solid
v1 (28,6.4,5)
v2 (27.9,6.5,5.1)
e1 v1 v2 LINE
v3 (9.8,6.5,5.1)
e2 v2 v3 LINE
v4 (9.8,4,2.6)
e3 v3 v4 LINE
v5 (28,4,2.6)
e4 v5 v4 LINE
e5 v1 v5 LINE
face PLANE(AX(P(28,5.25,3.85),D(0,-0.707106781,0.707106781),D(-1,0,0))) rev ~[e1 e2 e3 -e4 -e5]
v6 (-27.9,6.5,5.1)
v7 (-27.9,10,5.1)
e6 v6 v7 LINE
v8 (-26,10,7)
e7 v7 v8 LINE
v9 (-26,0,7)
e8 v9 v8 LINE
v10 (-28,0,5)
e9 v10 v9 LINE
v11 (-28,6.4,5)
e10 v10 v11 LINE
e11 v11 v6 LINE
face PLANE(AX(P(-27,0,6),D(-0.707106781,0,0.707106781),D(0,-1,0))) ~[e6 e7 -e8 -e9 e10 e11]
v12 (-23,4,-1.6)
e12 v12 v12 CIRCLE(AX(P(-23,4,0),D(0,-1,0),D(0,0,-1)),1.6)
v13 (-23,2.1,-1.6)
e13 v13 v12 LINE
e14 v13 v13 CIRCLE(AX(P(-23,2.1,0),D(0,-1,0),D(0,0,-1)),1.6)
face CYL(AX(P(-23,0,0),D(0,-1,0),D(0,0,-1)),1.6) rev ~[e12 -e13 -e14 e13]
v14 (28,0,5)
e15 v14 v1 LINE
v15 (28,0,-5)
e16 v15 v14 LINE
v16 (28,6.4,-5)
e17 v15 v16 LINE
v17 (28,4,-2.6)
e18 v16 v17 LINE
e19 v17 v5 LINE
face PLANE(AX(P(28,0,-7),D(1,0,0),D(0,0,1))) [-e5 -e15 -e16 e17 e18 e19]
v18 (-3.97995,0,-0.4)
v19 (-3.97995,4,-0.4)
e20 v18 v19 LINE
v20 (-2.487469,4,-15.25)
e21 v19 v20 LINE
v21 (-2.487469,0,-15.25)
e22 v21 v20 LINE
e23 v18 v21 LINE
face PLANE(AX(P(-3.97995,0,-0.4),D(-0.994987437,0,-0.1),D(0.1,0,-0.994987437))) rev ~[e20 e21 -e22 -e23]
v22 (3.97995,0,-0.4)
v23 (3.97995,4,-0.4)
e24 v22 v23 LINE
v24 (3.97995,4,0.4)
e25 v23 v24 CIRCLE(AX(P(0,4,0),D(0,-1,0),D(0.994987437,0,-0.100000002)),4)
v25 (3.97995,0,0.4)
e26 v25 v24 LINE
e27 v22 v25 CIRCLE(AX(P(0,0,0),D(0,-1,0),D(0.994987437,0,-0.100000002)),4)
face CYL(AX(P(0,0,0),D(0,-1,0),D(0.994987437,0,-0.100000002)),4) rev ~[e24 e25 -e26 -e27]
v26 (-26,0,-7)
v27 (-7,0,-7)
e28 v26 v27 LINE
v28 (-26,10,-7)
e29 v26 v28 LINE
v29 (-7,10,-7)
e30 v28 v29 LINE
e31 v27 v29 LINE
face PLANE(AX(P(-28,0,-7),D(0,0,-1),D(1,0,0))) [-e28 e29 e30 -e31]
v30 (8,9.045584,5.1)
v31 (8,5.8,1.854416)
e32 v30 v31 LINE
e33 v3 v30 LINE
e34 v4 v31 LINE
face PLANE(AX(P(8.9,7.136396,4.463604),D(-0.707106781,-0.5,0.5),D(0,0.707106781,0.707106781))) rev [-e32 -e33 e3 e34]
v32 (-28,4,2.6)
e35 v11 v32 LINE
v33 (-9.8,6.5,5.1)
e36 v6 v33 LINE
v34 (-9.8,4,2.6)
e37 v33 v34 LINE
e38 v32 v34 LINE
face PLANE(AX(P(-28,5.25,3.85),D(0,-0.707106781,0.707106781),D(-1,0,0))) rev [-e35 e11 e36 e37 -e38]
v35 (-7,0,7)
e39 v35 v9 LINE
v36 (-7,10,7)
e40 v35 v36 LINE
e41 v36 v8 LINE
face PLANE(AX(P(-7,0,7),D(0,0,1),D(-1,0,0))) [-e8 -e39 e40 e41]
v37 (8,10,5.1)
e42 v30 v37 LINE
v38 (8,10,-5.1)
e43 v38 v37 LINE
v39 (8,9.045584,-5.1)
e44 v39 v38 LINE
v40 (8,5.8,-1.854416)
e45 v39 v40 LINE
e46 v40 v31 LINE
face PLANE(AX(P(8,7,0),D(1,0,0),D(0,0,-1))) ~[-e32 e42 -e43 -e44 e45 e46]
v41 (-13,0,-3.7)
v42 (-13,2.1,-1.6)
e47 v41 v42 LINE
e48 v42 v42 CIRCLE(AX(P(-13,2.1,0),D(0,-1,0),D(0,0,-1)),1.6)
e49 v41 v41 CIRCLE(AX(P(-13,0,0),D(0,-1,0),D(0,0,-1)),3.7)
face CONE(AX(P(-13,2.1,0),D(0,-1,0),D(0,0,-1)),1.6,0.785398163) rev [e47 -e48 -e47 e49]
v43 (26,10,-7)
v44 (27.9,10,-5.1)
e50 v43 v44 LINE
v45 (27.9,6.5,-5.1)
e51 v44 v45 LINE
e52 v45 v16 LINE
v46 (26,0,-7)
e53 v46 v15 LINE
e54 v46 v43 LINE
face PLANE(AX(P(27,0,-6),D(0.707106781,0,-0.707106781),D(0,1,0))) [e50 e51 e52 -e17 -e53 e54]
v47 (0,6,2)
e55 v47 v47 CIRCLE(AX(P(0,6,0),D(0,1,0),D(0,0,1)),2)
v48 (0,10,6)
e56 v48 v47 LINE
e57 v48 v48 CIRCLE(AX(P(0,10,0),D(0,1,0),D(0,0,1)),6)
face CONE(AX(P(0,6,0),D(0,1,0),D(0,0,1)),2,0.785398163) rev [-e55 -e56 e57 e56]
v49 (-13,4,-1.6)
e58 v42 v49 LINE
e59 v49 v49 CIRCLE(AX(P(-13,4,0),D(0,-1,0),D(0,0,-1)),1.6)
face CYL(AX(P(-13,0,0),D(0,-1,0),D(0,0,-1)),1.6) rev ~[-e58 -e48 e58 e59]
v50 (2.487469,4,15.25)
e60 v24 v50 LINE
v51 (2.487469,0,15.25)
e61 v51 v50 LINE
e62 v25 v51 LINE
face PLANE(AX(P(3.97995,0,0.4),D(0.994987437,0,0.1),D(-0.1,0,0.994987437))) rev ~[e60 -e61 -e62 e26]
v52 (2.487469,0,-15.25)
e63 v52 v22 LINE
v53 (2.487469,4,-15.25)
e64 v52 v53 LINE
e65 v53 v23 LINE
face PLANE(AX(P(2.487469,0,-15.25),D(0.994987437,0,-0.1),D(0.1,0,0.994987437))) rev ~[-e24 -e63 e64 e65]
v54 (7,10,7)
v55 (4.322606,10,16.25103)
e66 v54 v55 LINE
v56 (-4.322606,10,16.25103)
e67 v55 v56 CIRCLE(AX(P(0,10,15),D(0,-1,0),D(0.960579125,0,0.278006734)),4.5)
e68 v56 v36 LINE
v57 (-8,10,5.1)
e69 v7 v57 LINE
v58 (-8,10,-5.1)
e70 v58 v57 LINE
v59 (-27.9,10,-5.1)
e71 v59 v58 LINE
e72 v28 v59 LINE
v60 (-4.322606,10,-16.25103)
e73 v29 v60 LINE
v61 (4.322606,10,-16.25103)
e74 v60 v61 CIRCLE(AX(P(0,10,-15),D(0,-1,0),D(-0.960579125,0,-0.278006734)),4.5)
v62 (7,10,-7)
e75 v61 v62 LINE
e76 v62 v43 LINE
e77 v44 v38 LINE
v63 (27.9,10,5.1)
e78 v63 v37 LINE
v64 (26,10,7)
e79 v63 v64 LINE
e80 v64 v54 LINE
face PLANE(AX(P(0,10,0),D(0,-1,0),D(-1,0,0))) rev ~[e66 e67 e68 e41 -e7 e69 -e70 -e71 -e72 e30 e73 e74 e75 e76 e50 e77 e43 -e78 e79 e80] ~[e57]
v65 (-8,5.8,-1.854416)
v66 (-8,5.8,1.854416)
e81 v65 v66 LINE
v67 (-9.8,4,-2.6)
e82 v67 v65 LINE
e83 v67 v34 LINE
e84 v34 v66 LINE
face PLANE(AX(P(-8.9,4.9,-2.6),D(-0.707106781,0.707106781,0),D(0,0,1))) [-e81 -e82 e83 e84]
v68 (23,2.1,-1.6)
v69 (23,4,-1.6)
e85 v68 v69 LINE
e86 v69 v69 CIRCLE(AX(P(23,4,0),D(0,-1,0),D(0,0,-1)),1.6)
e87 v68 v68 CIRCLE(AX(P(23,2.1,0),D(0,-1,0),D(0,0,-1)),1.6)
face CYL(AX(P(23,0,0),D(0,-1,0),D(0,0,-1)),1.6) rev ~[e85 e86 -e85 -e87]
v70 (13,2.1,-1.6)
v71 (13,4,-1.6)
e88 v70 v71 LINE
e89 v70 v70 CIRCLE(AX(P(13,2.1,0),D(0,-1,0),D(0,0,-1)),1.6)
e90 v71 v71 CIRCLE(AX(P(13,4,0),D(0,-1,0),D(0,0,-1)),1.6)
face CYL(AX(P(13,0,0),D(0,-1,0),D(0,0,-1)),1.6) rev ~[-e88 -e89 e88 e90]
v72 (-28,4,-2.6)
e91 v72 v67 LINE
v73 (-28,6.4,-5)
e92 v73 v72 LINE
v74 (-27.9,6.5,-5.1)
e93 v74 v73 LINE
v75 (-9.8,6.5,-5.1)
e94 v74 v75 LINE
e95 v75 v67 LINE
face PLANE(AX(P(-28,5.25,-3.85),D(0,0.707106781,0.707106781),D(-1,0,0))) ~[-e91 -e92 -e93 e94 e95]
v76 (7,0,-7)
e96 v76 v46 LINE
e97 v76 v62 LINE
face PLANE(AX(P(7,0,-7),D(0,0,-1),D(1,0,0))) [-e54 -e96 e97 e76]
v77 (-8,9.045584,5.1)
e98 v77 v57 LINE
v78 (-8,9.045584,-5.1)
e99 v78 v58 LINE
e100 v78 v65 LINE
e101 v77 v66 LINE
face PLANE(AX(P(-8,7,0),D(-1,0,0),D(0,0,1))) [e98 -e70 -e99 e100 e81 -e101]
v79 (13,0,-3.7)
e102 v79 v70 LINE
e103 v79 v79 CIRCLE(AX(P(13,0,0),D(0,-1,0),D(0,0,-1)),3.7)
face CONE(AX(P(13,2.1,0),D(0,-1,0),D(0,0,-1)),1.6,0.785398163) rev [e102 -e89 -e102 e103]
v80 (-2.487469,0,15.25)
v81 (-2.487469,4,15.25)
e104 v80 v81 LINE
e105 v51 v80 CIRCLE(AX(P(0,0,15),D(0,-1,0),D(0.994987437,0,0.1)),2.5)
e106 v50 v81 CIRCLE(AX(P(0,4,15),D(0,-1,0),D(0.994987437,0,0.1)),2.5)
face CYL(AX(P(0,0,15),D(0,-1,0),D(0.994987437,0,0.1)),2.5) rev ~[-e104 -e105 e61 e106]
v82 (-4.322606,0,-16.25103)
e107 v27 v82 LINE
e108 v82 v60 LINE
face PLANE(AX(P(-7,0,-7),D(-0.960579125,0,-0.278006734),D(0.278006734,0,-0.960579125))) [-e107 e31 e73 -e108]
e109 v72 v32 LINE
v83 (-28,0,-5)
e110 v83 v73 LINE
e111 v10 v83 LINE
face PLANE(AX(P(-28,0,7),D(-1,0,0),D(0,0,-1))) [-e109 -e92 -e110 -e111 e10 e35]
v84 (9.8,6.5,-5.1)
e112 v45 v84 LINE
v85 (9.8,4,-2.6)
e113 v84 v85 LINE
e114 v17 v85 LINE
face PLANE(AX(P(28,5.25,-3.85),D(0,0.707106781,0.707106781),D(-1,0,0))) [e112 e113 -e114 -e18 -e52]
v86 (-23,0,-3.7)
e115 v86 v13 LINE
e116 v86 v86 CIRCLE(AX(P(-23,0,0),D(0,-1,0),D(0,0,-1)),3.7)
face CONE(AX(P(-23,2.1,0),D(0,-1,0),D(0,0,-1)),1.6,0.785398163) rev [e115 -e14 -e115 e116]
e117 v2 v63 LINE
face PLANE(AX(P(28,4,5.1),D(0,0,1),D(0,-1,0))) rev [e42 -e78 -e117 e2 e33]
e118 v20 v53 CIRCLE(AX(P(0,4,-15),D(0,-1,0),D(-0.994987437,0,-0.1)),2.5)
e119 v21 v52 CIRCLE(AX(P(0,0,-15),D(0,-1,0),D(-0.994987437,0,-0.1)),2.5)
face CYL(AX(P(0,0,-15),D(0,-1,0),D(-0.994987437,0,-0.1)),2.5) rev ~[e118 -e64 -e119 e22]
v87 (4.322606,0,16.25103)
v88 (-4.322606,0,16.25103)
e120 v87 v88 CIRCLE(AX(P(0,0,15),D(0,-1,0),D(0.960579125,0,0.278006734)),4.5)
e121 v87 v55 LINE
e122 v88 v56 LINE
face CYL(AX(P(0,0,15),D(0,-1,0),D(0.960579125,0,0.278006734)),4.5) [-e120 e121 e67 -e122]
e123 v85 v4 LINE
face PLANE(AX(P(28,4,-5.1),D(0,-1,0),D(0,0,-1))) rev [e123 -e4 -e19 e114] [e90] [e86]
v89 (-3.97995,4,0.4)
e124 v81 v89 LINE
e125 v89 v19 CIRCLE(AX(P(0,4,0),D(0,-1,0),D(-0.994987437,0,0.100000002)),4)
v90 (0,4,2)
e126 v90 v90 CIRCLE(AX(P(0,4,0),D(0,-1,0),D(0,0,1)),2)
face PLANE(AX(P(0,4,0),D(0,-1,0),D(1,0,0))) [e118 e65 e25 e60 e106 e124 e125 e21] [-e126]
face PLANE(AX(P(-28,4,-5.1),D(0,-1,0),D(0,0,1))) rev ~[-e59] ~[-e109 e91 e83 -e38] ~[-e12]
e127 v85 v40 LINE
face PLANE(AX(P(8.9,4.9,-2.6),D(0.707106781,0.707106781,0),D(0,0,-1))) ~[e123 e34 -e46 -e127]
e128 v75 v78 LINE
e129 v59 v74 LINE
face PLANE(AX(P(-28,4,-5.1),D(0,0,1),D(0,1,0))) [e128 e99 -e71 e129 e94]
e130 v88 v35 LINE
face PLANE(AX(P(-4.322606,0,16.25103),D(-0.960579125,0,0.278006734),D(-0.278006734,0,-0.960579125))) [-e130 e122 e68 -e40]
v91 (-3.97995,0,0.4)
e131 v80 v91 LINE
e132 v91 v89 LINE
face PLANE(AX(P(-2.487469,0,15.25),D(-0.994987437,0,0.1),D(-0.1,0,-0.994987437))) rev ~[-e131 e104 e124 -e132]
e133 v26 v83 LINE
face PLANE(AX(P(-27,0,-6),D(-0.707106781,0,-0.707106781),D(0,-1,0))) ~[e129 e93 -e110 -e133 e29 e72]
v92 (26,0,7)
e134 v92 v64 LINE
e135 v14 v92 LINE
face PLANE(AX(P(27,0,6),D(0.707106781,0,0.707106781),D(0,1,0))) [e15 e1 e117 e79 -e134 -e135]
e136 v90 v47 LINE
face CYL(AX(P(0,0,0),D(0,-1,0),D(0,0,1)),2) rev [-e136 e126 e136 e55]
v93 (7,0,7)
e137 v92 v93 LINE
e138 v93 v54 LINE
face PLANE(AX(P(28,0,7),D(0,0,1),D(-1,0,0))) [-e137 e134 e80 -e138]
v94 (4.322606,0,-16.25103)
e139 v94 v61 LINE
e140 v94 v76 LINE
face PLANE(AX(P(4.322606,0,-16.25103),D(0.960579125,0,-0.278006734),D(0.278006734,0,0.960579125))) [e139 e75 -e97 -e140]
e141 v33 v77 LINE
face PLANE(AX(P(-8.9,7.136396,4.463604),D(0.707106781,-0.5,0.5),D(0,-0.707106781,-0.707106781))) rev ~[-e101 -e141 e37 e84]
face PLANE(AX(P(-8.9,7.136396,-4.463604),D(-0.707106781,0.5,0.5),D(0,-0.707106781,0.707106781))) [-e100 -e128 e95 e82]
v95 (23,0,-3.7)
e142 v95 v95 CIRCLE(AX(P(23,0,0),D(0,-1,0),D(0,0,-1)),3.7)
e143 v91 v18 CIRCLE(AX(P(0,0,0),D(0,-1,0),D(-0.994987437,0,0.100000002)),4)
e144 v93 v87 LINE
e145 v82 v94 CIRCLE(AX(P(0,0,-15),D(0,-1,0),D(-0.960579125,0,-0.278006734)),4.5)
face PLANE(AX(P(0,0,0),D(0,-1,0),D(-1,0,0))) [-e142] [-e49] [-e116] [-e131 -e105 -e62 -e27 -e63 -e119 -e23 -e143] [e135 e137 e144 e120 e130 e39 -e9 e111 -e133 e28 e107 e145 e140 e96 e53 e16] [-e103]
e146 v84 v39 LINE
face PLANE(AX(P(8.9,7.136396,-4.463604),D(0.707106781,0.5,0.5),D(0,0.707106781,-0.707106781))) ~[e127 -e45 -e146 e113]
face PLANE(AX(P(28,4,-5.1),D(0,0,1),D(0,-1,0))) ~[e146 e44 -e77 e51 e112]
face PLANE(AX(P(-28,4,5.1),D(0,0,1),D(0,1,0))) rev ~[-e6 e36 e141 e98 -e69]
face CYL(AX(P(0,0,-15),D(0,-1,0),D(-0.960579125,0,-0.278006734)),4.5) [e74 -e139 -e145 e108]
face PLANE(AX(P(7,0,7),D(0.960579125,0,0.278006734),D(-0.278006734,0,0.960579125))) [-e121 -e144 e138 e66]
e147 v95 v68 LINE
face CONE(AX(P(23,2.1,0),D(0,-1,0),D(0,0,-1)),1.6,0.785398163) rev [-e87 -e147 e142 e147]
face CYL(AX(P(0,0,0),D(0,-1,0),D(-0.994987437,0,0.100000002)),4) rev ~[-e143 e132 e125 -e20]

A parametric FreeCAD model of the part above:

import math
import FreeCAD as App
import Part
import Sketcher
from FreeCAD import Vector


def edges_at(feature, points):
    """Names of the edges that pass closest to the given points."""
    edges = feature.Shape.Edges
    near = lambda p: min(range(len(edges)), key=lambda i: edges[i].distToShape(Part.Vertex(*p))[0])
    return sorted({f"Edge{near(p) + 1}" for p in points})

doc = App.newDocument("Part")
params = doc.addObject("Spreadsheet::Sheet", "Params")
for row, (alias, value) in enumerate([
    ("sketch1_diameter", "4 mm"),
    ("sketch1_radius", "4.5 mm"),
    ("sketch1_width", "21 mm"),
    ("sketch1_height", "14 mm"),
    ("pad1_length", "10 mm"),
    ("sketch2_width", "6 mm"),
    ("sketch2_height", "10.2 mm"),
    ("pocket1_length", "20 mm"),
    ("chamfer_size", "2.5 mm"),
    ("chamfer2_size", "1.8 mm"),
    ("chamfer3_size", "2.5 mm"),
    ("chamfer4_size", "1.8 mm"),
    ("sketch3_diameter", "3.2 mm"),
    ("pocket2_length", "7 mm"),
    ("chamfer5_size", "2.1 mm"),
    ("chamfer6_size", "2 mm"),
    ("sketch4_radius", "4 mm"),
    ("sketch4_radius2", "2.5 mm"),
    ("pocket3_length", "4 mm"),
    ("chamfer7_size", "4 mm"),
], start=1):
    params.set(f"A{row}", alias)
    params.set(f"B{row}", "=" + value)
    params.setAlias(f"B{row}", alias)

body = doc.addObject("PartDesign::Body", "Body")

# Sketch on XZ plane
sketch1 = body.newObject("Sketcher::SketchObject", "Sketch")
sketch1.AttachmentSupport = (doc.getObject("XZ_Plane"), [""])
sketch1.MapMode = "FlatFace"
sketch1.addGeometry([
    Part.LineSegment(Vector(28, -7, 0), Vector(7, -7, 0)),  # 0
    Part.LineSegment(Vector(7, -7, 0), Vector(4.3, -16.3, 0)),  # 1
    Part.ArcOfCircle(Part.Circle(Vector(0, -15, 0), Vector(0, 0, 1), 4.5), math.radians(-164), math.radians(-16)),  # 2
    Part.LineSegment(Vector(-4.3, -16.3, 0), Vector(-7, -7, 0)),  # 3
    Part.LineSegment(Vector(-7, -7, 0), Vector(-28, -7, 0)),  # 4
    Part.LineSegment(Vector(-28, -7, 0), Vector(-28, 7, 0)),  # 5
    Part.LineSegment(Vector(-28, 7, 0), Vector(-7, 7, 0)),  # 6
    Part.LineSegment(Vector(-7, 7, 0), Vector(-4.3, 16.3, 0)),  # 7
    Part.ArcOfCircle(Part.Circle(Vector(0, 15, 0), Vector(0, 0, 1), 4.5), math.radians(16), math.radians(164)),  # 8
    Part.LineSegment(Vector(4.3, 16.3, 0), Vector(7, 7, 0)),  # 9
    Part.LineSegment(Vector(7, 7, 0), Vector(28, 7, 0)),  # 10
    Part.LineSegment(Vector(28, 7, 0), Vector(28, -7, 0)),  # 11
    Part.Circle(Vector(0, 0, 0), Vector(0, 0, 1), 2),  # 12
], False)
sketch1.addConstraint([
    Sketcher.Constraint("Coincident", 0, 2, 1, 1),
    Sketcher.Constraint("Tangent", 1, 2, 2, 2),
    Sketcher.Constraint("Tangent", 2, 1, 3, 1),
    Sketcher.Constraint("Coincident", 3, 2, 4, 1),
    Sketcher.Constraint("Coincident", 4, 2, 5, 1),
    Sketcher.Constraint("Coincident", 5, 2, 6, 1),
    Sketcher.Constraint("Coincident", 6, 2, 7, 1),
    Sketcher.Constraint("Tangent", 7, 2, 8, 2),
    Sketcher.Constraint("Tangent", 8, 1, 9, 1),
    Sketcher.Constraint("Coincident", 9, 2, 10, 1),
    Sketcher.Constraint("Coincident", 10, 2, 11, 1),
    Sketcher.Constraint("Coincident", 11, 2, 0, 1),
    Sketcher.Constraint("Horizontal", 0),
    Sketcher.Constraint("Horizontal", 4),
    Sketcher.Constraint("Vertical", 5),
    Sketcher.Constraint("Horizontal", 6),
    Sketcher.Constraint("Horizontal", 10),
    Sketcher.Constraint("Vertical", 11),
    Sketcher.Constraint("Coincident", 12, 3, -1, 1),
    Sketcher.Constraint("Equal", 2, 8),
    Sketcher.Constraint("Symmetric", 2, 3, 8, 3, -1, 1),
    Sketcher.Constraint("Symmetric", 0, 2, 6, 2, -1, 1),
    Sketcher.Constraint("Symmetric", 3, 2, 9, 2, -1, 1),
    Sketcher.Constraint("Symmetric", 1, 2, 2, 1, -2),
    Sketcher.Constraint("Symmetric", 5, 2, 10, 2, -2),
    Sketcher.Constraint("Diameter", 12, 4.0),
    Sketcher.Constraint("Radius", 2, 4.5),
    Sketcher.Constraint("DistanceX", 0, 2, 0, 1, 21.0),
    Sketcher.Constraint("DistanceY", 5, 1, 5, 2, 14.0),
    Sketcher.Constraint("DistanceY", 2, 3, -1, 1, 15.0),
    Sketcher.Constraint("DistanceX", -1, 1, 0, 2, 7.0),
])
sketch1.setExpression("Constraints[25]", "Params.sketch1_diameter")
sketch1.setExpression("Constraints[26]", "Params.sketch1_radius")
sketch1.setExpression("Constraints[27]", "Params.sketch1_width")
sketch1.setExpression("Constraints[28]", "Params.sketch1_height")
pad1 = body.newObject("PartDesign::Pad", "Pad")
pad1.Profile = sketch1
pad1.setExpression("Length", "Params.pad1_length")
pad1.Reversed = True

# Sketch on YZ plane
sketch2 = body.newObject("Sketcher::SketchObject", "Sketch001")
sketch2.AttachmentSupport = (doc.getObject("YZ_Plane"), [""])
sketch2.MapMode = "FlatFace"
sketch2.AttachmentOffset = App.Placement(Vector(0, 0, -28), App.Rotation())
sketch2.addGeometry([
    Part.LineSegment(Vector(10, -5, 0), Vector(4, -5, 0)),
    Part.LineSegment(Vector(4, -5, 0), Vector(4, 5, 0)),
    Part.LineSegment(Vector(4, 5, 0), Vector(10, 5, 0)),
    Part.LineSegment(Vector(10, 5, 0), Vector(10, -5, 0)),
], False)
sketch2.addConstraint([
    Sketcher.Constraint("Coincident", 0, 2, 1, 1),
    Sketcher.Constraint("Coincident", 1, 2, 2, 1),
    Sketcher.Constraint("Coincident", 2, 2, 3, 1),
    Sketcher.Constraint("Coincident", 3, 2, 0, 1),
    Sketcher.Constraint("Horizontal", 0),
    Sketcher.Constraint("Vertical", 1),
    Sketcher.Constraint("Horizontal", 2),
    Sketcher.Constraint("Vertical", 3),
    Sketcher.Constraint("DistanceX", 0, 2, 0, 1, 6.0),
    Sketcher.Constraint("DistanceY", 1, 1, 1, 2, 10.2),
    Sketcher.Constraint("DistanceX", -1, 1, 0, 2, 4.0),
    Sketcher.Constraint("DistanceY", 0, 2, -1, 1, 5.1),
])
sketch2.setExpression("Constraints[8]", "Params.sketch2_width")
sketch2.setExpression("Constraints[9]", "Params.sketch2_height")
pocket1 = body.newObject("PartDesign::Pocket", "Pocket")
pocket1.Profile = sketch2
pocket1.setExpression("Length", "Params.pocket1_length")
pocket1.Reversed = True
doc.recompute()

chamfer = body.newObject("PartDesign::Chamfer", "Chamfer")
chamfer.Base = (pocket1, edges_at(pocket1, [(-18, 4, -5.1), (-18, 4, 5.1)]))
chamfer.setExpression("Size", "Params.chamfer_size")
doc.recompute()

chamfer2 = body.newObject("PartDesign::Chamfer", "Chamfer001")
chamfer2.Base = (chamfer, edges_at(chamfer, [(-8, 4, 0), (-8, 5.25, -3.85), (-8, 5.25, 3.85)]))
chamfer2.setExpression("Size", "Params.chamfer2_size")
doc.recompute()

mirrored = body.newObject("PartDesign::Mirrored", "Mirrored")
mirrored.Originals = [pocket1]
mirrored.MirrorPlane = (doc.getObject("YZ_Plane"), [""])
body.Tip = mirrored
doc.recompute()

chamfer3 = body.newObject("PartDesign::Chamfer", "Chamfer002")
chamfer3.Base = (mirrored, edges_at(mirrored, [(18, 4, -5.1), (18, 4, 5.1)]))
chamfer3.setExpression("Size", "Params.chamfer3_size")
doc.recompute()

chamfer4 = body.newObject("PartDesign::Chamfer", "Chamfer003")
chamfer4.Base = (chamfer3, edges_at(chamfer3, [(8, 4, 0), (8, 5.25, -3.85), (8, 5.25, 3.85)]))
chamfer4.setExpression("Size", "Params.chamfer4_size")

# Sketch on XZ plane
sketch3 = body.newObject("Sketcher::SketchObject", "Sketch002")
sketch3.AttachmentSupport = (doc.getObject("XZ_Plane"), [""])
sketch3.MapMode = "FlatFace"
sketch3.addGeometry([
    Part.Circle(Vector(-23, 0, 0), Vector(0, 0, 1), 1.6),
    Part.Circle(Vector(-13, 0, 0), Vector(0, 0, 1), 1.6),
    Part.Circle(Vector(13, 0, 0), Vector(0, 0, 1), 1.6),
    Part.Circle(Vector(23, 0, 0), Vector(0, 0, 1), 1.6),
], False)
sketch3.addConstraint([
    Sketcher.Constraint("Equal", 0, 1),
    Sketcher.Constraint("Equal", 1, 2),
    Sketcher.Constraint("Equal", 2, 3),
    Sketcher.Constraint("Symmetric", 1, 3, 2, 3, -1, 1),
    Sketcher.Constraint("Symmetric", 0, 3, 3, 3, -1, 1),
    Sketcher.Constraint("PointOnObject", 0, 3, -1),
    Sketcher.Constraint("PointOnObject", 1, 3, -1),
    Sketcher.Constraint("Diameter", 0, 3.2),
    Sketcher.Constraint("DistanceX", 0, 3, -1, 1, 23.0),
    Sketcher.Constraint("DistanceX", 1, 3, -1, 1, 13.0),
])
sketch3.setExpression("Constraints[7]", "Params.sketch3_diameter")
pocket2 = body.newObject("PartDesign::Pocket", "Pocket001")
pocket2.Profile = sketch3
pocket2.setExpression("Length", "Params.pocket2_length")
doc.recompute()

chamfer5 = body.newObject("PartDesign::Chamfer", "Chamfer004")
chamfer5.Base = (pocket2, edges_at(pocket2, [
    (-23, 0, 1.6),
    (-13, 0, 1.6),
    (13, 0, 1.6),
    (23, 0, 1.6),
]))
chamfer5.setExpression("Size", "Params.chamfer5_size")
doc.recompute()

chamfer6 = body.newObject("PartDesign::Chamfer", "Chamfer005")
chamfer6.Base = (chamfer5, edges_at(chamfer5, [
    (28, 5, -7),
    (28, 5, 7),
    (-28, 5, -7),
    (-28, 5, 7),
]))
chamfer6.setExpression("Size", "Params.chamfer6_size")

# Sketch on XZ plane
sketch4 = body.newObject("Sketcher::SketchObject", "Sketch003")
sketch4.AttachmentSupport = (doc.getObject("XZ_Plane"), [""])
sketch4.MapMode = "FlatFace"
sketch4.addGeometry([
    Part.LineSegment(Vector(-4, -0.4, 0), Vector(-2.5, -15.2, 0)),  # 0
    Part.ArcOfCircle(Part.Circle(Vector(0, -15, 0), Vector(0, 0, 1), 2.5), math.radians(-174), math.radians(-6)),  # 1
    Part.LineSegment(Vector(2.5, -15.2, 0), Vector(4, -0.4, 0)),  # 2
    Part.ArcOfCircle(Part.Circle(Vector(0, 0, 0), Vector(0, 0, 1), 4), math.radians(-5.74), math.radians(5.74)),  # 3
    Part.LineSegment(Vector(4, 0.4, 0), Vector(2.5, 15.2, 0)),  # 4
    Part.ArcOfCircle(Part.Circle(Vector(0, 15, 0), Vector(0, 0, 1), 2.5), math.radians(6), math.radians(174)),  # 5
    Part.LineSegment(Vector(-2.5, 15.2, 0), Vector(-4, 0.4, 0)),  # 6
    Part.ArcOfCircle(Part.Circle(Vector(0, 0, 0), Vector(0, 0, 1), 4), math.radians(174.26), math.radians(185.74)),  # 7
], False)
sketch4.addConstraint([
    Sketcher.Constraint("Tangent", 0, 2, 1, 1),
    Sketcher.Constraint("Tangent", 1, 2, 2, 1),
    Sketcher.Constraint("Tangent", 2, 2, 3, 1),
    Sketcher.Constraint("Tangent", 3, 2, 4, 1),
    Sketcher.Constraint("Tangent", 4, 2, 5, 1),
    Sketcher.Constraint("Tangent", 5, 2, 6, 1),
    Sketcher.Constraint("Tangent", 6, 2, 7, 1),
    Sketcher.Constraint("Tangent", 7, 2, 0, 1),
    Sketcher.Constraint("Coincident", 3, 3, -1, 1),
    Sketcher.Constraint("Coincident", 7, 3, -1, 1),
    Sketcher.Constraint("Equal", 1, 5),
    Sketcher.Constraint("Equal", 3, 7),
    Sketcher.Constraint("Symmetric", 1, 3, 5, 3, -1, 1),
    Sketcher.Constraint("PointOnObject", 1, 3, -2),
    Sketcher.Constraint("Radius", 3, 4.0),
    Sketcher.Constraint("Radius", 1, 2.5),
    Sketcher.Constraint("DistanceY", 1, 3, -1, 1, 15.0),
])
sketch4.setExpression("Constraints[14]", "Params.sketch4_radius")
sketch4.setExpression("Constraints[15]", "Params.sketch4_radius2")
pocket3 = body.newObject("PartDesign::Pocket", "Pocket002")
pocket3.Profile = sketch4
pocket3.setExpression("Length", "Params.pocket3_length")
doc.recompute()

chamfer7 = body.newObject("PartDesign::Chamfer", "Chamfer006")
chamfer7.Base = (pocket3, edges_at(pocket3, [(0, 10, -2)]))
chamfer7.setExpression("Size", "Params.chamfer7_size")

doc.recompute()
